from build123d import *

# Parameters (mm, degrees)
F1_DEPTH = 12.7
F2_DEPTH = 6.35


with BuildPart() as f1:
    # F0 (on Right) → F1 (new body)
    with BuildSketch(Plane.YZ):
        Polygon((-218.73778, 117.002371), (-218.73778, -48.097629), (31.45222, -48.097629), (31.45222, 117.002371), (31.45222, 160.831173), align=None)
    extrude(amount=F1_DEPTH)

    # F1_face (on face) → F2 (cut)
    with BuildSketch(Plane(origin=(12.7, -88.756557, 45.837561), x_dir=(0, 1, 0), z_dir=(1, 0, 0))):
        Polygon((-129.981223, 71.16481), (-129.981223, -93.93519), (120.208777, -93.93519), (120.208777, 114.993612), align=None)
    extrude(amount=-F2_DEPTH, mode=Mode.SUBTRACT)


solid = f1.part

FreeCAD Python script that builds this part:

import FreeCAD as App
import Part
import Sketcher

V = App.Vector
Q = App.Units.Quantity


def add_polygon(sketch, points):
    """Adds a closed chain of lines whose ends are joined by coincident constraints."""
    first, n = sketch.GeometryCount, len(points)
    for a, b in zip(points, points[1:] + points[:1]):
        sketch.addGeometry(Part.LineSegment(App.Vector(*a, 0), App.Vector(*b, 0)), False)
    for i in range(n):
        sketch.addConstraint(Sketcher.Constraint("Coincident", first + i, 2, first + (i + 1) % n, 1))

doc = App.newDocument("Part")
body = doc.addObject("PartDesign::Body", "Body")

# Sketch on YZ plane
sketch1 = doc.addObject("Sketcher::SketchObject", "Sketch")
body.addObject(sketch1)
sketch1.AttachmentSupport = (doc.YZ_Plane, [""])
sketch1.MapMode = "FlatFace"
add_polygon(sketch1, [(-219, 117), (-219, -48), (31, -48), (31, 161)])  # lines 0-3
sketch1.addConstraint(Sketcher.Constraint("Vertical", 0))
sketch1.addConstraint(Sketcher.Constraint("Horizontal", 1))
sketch1.addConstraint(Sketcher.Constraint("Vertical", 2))
sketch1.addConstraint(Sketcher.Constraint("Distance", 3, Q("10 in")))
sketch1.addConstraint(Sketcher.Constraint("DistanceY", 0, 2, 0, 1, Q("6.5 in")))
sketch1.addConstraint(Sketcher.Constraint("DistanceX", 1, 1, 1, 2, Q("9.85 in")))
sketch1.addConstraint(Sketcher.Constraint("DistanceX", 0, 2, -1, 1, Q("218.73778 mm")))
sketch1.addConstraint(Sketcher.Constraint("DistanceY", 0, 2, -1, 1, Q("48.097629 mm")))
pad1 = doc.addObject("PartDesign::Pad", "Pad")
body.addObject(pad1)
pad1.Profile = sketch1
pad1.Length = Q("0.5 in")

# Sketch on YZ plane
sketch2 = doc.addObject("Sketcher::SketchObject", "Sketch001")
body.addObject(sketch2)
sketch2.AttachmentSupport = (doc.YZ_Plane, [""])
sketch2.MapMode = "FlatFace"
sketch2.AttachmentOffset = App.Placement(V(0, 0, 0.5 * 25.4), App.Rotation())
add_polygon(sketch2, [(-219, 117), (-219, -48), (31, -48), (31, 161)])  # lines 0-3
sketch2.addConstraint(Sketcher.Constraint("Vertical", 0))
sketch2.addConstraint(Sketcher.Constraint("Horizontal", 1))
sketch2.addConstraint(Sketcher.Constraint("Vertical", 2))
sketch2.addConstraint(Sketcher.Constraint("Distance", 3, Q("10 in")))
sketch2.addConstraint(Sketcher.Constraint("DistanceY", 0, 2, 0, 1, Q("6.5 in")))
sketch2.addConstraint(Sketcher.Constraint("DistanceX", 1, 1, 1, 2, Q("9.85 in")))
sketch2.addConstraint(Sketcher.Constraint("DistanceX", 0, 2, -1, 1, Q("218.73778 mm")))
sketch2.addConstraint(Sketcher.Constraint("DistanceY", 0, 2, -1, 1, Q("48.097629 mm")))
pocket1 = doc.addObject("PartDesign::Pocket", "Pocket")
body.addObject(pocket1)
pocket1.Profile = sketch2
pocket1.Length = Q("0.25 in")

doc.recompute()
